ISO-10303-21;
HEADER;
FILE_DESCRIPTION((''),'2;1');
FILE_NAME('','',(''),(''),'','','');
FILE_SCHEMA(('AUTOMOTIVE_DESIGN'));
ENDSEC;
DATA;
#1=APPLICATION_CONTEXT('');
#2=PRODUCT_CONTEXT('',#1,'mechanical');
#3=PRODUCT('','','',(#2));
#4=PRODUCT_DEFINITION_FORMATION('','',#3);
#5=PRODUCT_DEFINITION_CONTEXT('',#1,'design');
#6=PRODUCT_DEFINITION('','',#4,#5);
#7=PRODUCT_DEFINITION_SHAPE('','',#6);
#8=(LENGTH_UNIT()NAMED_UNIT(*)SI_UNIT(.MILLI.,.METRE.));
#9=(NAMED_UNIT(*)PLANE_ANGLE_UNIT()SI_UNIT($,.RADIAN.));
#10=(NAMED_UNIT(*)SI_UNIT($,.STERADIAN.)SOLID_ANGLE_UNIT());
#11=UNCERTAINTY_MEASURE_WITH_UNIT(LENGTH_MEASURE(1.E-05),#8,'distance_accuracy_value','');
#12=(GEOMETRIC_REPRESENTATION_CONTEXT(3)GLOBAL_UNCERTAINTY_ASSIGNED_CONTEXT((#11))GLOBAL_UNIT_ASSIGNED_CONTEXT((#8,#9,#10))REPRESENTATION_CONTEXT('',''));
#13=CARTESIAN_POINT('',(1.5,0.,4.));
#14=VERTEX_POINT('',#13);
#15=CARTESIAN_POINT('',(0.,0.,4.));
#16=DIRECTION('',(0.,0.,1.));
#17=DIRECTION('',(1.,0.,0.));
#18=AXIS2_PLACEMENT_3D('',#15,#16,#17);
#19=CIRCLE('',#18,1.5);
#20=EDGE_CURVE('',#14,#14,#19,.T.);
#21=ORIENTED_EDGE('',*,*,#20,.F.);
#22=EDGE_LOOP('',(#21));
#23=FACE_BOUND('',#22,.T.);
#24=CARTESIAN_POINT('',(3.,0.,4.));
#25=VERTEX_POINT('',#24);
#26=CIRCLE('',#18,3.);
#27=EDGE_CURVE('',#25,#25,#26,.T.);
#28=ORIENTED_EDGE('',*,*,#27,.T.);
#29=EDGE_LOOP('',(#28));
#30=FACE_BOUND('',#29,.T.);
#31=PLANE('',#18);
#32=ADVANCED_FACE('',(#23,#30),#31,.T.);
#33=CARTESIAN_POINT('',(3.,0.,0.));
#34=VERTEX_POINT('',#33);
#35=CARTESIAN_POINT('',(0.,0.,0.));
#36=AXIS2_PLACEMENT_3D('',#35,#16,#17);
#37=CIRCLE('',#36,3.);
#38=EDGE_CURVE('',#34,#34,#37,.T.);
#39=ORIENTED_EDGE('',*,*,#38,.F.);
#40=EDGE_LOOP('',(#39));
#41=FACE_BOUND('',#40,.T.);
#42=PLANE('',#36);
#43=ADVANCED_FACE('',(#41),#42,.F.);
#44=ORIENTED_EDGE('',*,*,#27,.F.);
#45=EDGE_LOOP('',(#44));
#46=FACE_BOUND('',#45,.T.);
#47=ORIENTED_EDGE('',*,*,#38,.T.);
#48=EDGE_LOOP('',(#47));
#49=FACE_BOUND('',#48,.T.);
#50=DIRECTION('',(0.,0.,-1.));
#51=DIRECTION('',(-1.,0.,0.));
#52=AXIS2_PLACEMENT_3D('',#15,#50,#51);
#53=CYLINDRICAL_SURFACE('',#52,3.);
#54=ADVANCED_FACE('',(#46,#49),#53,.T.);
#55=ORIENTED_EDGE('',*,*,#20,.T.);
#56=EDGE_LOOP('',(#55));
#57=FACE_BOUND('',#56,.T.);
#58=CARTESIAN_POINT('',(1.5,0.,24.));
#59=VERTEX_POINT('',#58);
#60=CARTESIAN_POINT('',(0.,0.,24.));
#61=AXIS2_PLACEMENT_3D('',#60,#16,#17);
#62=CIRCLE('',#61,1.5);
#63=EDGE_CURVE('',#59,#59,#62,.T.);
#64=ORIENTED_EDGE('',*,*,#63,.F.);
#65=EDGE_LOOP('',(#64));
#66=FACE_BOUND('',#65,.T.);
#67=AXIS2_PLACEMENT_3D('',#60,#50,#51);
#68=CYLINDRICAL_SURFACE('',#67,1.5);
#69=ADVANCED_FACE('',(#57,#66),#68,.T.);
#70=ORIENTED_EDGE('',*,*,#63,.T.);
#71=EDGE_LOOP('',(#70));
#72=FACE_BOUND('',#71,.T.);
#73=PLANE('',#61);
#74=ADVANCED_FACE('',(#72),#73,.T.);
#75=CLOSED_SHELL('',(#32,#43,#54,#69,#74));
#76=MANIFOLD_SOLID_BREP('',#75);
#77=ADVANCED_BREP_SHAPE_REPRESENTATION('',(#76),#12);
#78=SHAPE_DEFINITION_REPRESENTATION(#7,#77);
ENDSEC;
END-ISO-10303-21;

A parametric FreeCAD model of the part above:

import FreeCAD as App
import Part
import Sketcher

V = App.Vector
Q = App.Units.Quantity

doc = App.newDocument("Part")
body = doc.addObject("PartDesign::Body", "Body")

# Sketch on XY plane
sketch1 = body.newObject("Sketcher::SketchObject", "Sketch")
sketch1.AttachmentSupport = (doc.getObject("XY_Plane"), [""])
sketch1.MapMode = "FlatFace"
sketch1.addGeometry(Part.Circle(V(0, 0, 0), V(0, 0, 1), 3), False)
sketch1.addConstraint([
    Sketcher.Constraint("Coincident", 0, 3, -1, 1),
    Sketcher.Constraint("Diameter", 0, Q("6 mm")),
])
pad1 = body.newObject("PartDesign::Pad", "Pad")
pad1.Profile = sketch1
pad1.Length = 4

# Sketch on XY plane
sketch2 = body.newObject("Sketcher::SketchObject", "Sketch001")
sketch2.AttachmentSupport = (doc.getObject("XY_Plane"), [""])
sketch2.MapMode = "FlatFace"
sketch2.AttachmentOffset = App.Placement(V(0, 0, 4), App.Rotation())
sketch2.addGeometry(Part.Circle(V(0, 0, 0), V(0, 0, 1), 1.5), False)
sketch2.addConstraint([
    Sketcher.Constraint("Coincident", 0, 3, -1, 1),
    Sketcher.Constraint("Diameter", 0, Q("3 mm")),
])
pad2 = body.newObject("PartDesign::Pad", "Pad001")
pad2.Profile = sketch2
pad2.Length = 20

doc.recompute()
